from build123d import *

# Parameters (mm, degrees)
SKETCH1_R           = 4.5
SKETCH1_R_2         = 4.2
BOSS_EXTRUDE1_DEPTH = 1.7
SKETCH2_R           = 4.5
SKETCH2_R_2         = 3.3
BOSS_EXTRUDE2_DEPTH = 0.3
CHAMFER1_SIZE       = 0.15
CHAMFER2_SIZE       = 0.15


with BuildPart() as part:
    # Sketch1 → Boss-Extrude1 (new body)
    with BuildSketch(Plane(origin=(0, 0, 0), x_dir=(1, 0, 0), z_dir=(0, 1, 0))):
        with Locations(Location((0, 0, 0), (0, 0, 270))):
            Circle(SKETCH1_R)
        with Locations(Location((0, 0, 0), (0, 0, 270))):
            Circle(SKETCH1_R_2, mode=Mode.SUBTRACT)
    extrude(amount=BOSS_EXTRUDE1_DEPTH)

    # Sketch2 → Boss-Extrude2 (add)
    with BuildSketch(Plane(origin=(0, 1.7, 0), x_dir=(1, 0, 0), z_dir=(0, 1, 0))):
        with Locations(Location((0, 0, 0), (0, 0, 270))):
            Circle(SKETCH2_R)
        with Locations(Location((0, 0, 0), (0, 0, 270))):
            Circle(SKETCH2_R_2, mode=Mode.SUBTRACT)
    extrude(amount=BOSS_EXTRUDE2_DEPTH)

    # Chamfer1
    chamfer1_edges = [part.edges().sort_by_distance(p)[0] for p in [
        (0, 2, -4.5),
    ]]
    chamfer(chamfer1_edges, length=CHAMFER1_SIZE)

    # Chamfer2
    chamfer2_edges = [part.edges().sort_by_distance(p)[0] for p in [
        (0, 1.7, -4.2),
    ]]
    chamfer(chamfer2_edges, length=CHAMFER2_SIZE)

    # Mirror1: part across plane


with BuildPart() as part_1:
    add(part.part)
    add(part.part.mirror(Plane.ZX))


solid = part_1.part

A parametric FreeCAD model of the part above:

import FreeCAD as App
import Part
import Sketcher
from FreeCAD import Vector
Q = App.Units.Quantity


def edges_at(feature, points):
    """Names of the edges that pass closest to the given points."""
    edges = feature.Shape.Edges
    near = lambda p: min(range(len(edges)), key=lambda i: edges[i].distToShape(Part.Vertex(*p))[0])
    return sorted({f"Edge{near(p) + 1}" for p in points})

doc = App.newDocument("Part")
params = doc.addObject("Spreadsheet::Sheet", "Params")
for row, (alias, value) in enumerate([
    ("sketch1_diameter", "9 mm"),
    ("sketch1_diameter2", "8.4 mm"),
    ("pad1_length", "1.7 mm"),
    ("sketch2_diameter", "9 mm"),
    ("sketch2_diameter2", "6.6 mm"),
    ("pad2_length", "0.3 mm"),
    ("chamfer_size", "0.15 mm"),
    ("chamfer2_size", "0.15 mm"),
], start=1):
    params.set(f"A{row}", alias)
    params.set(f"B{row}", "=" + value)
    params.setAlias(f"B{row}", alias)

body = doc.addObject("PartDesign::Body", "Body")

# Sketch on XZ plane
sketch1 = body.newObject("Sketcher::SketchObject", "Sketch")
sketch1.AttachmentSupport = (doc.getObject("XZ_Plane"), [""])
sketch1.MapMode = "FlatFace"
sketch1.addGeometry([
    Part.Circle(Vector(0, 0, 0), Vector(0, 0, 1), 4.5),
    Part.Circle(Vector(0, 0, 0), Vector(0, 0, 1), 4.2),
], False)
sketch1.addConstraint([
    Sketcher.Constraint("Coincident", 0, 3, -1, 1),
    Sketcher.Constraint("Coincident", 1, 3, -1, 1),
    Sketcher.Constraint("Diameter", 0, Q("9 mm")),
    Sketcher.Constraint("Diameter", 1, Q("8.4 mm")),
])
sketch1.setExpression("Constraints[2]", "Params.sketch1_diameter")
sketch1.setExpression("Constraints[3]", "Params.sketch1_diameter2")
pad1 = body.newObject("PartDesign::Pad", "Pad")
pad1.Profile = sketch1
pad1.setExpression("Length", "Params.pad1_length")
pad1.Reversed = True

# Sketch on XZ plane
sketch2 = body.newObject("Sketcher::SketchObject", "Sketch001")
sketch2.AttachmentSupport = (doc.getObject("XZ_Plane"), [""])
sketch2.MapMode = "FlatFace"
sketch2.AttachmentOffset = App.Placement(Vector(0, 0, -1.7), App.Rotation())
sketch2.addGeometry([
    Part.Circle(Vector(0, 0, 0), Vector(0, 0, 1), 4.5),
    Part.Circle(Vector(0, 0, 0), Vector(0, 0, 1), 3.3),
], False)
sketch2.addConstraint([
    Sketcher.Constraint("Coincident", 0, 3, -1, 1),
    Sketcher.Constraint("Coincident", 1, 3, -1, 1),
    Sketcher.Constraint("Diameter", 0, Q("9 mm")),
    Sketcher.Constraint("Diameter", 1, Q("6.6 mm")),
])
sketch2.setExpression("Constraints[2]", "Params.sketch2_diameter")
sketch2.setExpression("Constraints[3]", "Params.sketch2_diameter2")
pad2 = body.newObject("PartDesign::Pad", "Pad001")
pad2.Profile = sketch2
pad2.setExpression("Length", "Params.pad2_length")
pad2.Reversed = True
doc.recompute()

chamfer = body.newObject("PartDesign::Chamfer", "Chamfer")
chamfer.Base = (pad2, edges_at(pad2, [(0, 2, -4.5)]))
chamfer.setExpression("Size", "Params.chamfer_size")
doc.recompute()

chamfer2 = body.newObject("PartDesign::Chamfer", "Chamfer001")
chamfer2.Base = (chamfer, edges_at(chamfer, [(0, 1.7, -4.2)]))
chamfer2.setExpression("Size", "Params.chamfer2_size")
body2 = doc.addObject("PartDesign::Body", "Body001")
doc.recompute()

body2.BaseFeature = body
doc.recompute()

mirroring = doc.addObject("Part::Mirroring", "Mirroring")
mirroring.Source = body
mirroring.Base = Vector(0, 0, 0)
mirroring.Normal = Vector(0, 1, 0)
body3 = doc.addObject("PartDesign::Body", "Body002")
body3.BaseFeature = mirroring
boolean = body2.newObject("PartDesign::Boolean", "Boolean")
boolean.Type = "Fuse"
boolean.addObjects([body3])
doc.recompute()
mirroring.Visibility = False

doc.recompute()
